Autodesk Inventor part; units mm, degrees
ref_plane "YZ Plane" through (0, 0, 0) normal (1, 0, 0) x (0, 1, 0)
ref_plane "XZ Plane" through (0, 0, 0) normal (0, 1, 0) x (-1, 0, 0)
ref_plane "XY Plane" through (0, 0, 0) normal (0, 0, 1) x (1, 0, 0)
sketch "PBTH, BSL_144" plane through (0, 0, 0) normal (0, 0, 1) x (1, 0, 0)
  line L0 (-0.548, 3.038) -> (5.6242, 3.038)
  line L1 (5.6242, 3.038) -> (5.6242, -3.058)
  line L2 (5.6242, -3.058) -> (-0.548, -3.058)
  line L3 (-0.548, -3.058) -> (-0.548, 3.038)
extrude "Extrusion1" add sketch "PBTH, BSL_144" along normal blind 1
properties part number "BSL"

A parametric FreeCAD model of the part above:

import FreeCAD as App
import Part
import Sketcher
Q = App.Units.Quantity


def add_polygon(sketch, points):
    """Adds a closed chain of lines whose ends are joined by coincident constraints."""
    first, n = sketch.GeometryCount, len(points)
    for a, b in zip(points, points[1:] + points[:1]):
        sketch.addGeometry(Part.LineSegment(App.Vector(*a, 0), App.Vector(*b, 0)), False)
    for i in range(n):
        sketch.addConstraint(Sketcher.Constraint("Coincident", first + i, 2, first + (i + 1) % n, 1))

doc = App.newDocument("Part")
body = doc.addObject("PartDesign::Body", "Body")

# Sketch on XY plane
sketch1 = body.newObject("Sketcher::SketchObject", "Sketch")
sketch1.AttachmentSupport = (doc.getObject("XY_Plane"), [""])
sketch1.MapMode = "FlatFace"
add_polygon(sketch1, [(6, 3), (-1, 3), (-1, -3), (6, -3)])  # lines 0-3
sketch1.addConstraint([
    Sketcher.Constraint("Horizontal", 0),
    Sketcher.Constraint("Vertical", 1),
    Sketcher.Constraint("Horizontal", 2),
    Sketcher.Constraint("Vertical", 3),
    Sketcher.Constraint("DistanceY", 1, 2, 1, 1, Q("0.24 in")),
    Sketcher.Constraint("DistanceX", 0, 2, 0, 1, Q("0.243 in")),
    Sketcher.Constraint("DistanceY", -1, 1, 0, 2, Q("0.1196 in")),
    Sketcher.Constraint("DistanceX", 0, 2, -1, 1, Q("0.548 mm")),
])
pad1 = body.newObject("PartDesign::Pad", "Pad")
pad1.Profile = sketch1
pad1.Length = 1

doc.recompute()
